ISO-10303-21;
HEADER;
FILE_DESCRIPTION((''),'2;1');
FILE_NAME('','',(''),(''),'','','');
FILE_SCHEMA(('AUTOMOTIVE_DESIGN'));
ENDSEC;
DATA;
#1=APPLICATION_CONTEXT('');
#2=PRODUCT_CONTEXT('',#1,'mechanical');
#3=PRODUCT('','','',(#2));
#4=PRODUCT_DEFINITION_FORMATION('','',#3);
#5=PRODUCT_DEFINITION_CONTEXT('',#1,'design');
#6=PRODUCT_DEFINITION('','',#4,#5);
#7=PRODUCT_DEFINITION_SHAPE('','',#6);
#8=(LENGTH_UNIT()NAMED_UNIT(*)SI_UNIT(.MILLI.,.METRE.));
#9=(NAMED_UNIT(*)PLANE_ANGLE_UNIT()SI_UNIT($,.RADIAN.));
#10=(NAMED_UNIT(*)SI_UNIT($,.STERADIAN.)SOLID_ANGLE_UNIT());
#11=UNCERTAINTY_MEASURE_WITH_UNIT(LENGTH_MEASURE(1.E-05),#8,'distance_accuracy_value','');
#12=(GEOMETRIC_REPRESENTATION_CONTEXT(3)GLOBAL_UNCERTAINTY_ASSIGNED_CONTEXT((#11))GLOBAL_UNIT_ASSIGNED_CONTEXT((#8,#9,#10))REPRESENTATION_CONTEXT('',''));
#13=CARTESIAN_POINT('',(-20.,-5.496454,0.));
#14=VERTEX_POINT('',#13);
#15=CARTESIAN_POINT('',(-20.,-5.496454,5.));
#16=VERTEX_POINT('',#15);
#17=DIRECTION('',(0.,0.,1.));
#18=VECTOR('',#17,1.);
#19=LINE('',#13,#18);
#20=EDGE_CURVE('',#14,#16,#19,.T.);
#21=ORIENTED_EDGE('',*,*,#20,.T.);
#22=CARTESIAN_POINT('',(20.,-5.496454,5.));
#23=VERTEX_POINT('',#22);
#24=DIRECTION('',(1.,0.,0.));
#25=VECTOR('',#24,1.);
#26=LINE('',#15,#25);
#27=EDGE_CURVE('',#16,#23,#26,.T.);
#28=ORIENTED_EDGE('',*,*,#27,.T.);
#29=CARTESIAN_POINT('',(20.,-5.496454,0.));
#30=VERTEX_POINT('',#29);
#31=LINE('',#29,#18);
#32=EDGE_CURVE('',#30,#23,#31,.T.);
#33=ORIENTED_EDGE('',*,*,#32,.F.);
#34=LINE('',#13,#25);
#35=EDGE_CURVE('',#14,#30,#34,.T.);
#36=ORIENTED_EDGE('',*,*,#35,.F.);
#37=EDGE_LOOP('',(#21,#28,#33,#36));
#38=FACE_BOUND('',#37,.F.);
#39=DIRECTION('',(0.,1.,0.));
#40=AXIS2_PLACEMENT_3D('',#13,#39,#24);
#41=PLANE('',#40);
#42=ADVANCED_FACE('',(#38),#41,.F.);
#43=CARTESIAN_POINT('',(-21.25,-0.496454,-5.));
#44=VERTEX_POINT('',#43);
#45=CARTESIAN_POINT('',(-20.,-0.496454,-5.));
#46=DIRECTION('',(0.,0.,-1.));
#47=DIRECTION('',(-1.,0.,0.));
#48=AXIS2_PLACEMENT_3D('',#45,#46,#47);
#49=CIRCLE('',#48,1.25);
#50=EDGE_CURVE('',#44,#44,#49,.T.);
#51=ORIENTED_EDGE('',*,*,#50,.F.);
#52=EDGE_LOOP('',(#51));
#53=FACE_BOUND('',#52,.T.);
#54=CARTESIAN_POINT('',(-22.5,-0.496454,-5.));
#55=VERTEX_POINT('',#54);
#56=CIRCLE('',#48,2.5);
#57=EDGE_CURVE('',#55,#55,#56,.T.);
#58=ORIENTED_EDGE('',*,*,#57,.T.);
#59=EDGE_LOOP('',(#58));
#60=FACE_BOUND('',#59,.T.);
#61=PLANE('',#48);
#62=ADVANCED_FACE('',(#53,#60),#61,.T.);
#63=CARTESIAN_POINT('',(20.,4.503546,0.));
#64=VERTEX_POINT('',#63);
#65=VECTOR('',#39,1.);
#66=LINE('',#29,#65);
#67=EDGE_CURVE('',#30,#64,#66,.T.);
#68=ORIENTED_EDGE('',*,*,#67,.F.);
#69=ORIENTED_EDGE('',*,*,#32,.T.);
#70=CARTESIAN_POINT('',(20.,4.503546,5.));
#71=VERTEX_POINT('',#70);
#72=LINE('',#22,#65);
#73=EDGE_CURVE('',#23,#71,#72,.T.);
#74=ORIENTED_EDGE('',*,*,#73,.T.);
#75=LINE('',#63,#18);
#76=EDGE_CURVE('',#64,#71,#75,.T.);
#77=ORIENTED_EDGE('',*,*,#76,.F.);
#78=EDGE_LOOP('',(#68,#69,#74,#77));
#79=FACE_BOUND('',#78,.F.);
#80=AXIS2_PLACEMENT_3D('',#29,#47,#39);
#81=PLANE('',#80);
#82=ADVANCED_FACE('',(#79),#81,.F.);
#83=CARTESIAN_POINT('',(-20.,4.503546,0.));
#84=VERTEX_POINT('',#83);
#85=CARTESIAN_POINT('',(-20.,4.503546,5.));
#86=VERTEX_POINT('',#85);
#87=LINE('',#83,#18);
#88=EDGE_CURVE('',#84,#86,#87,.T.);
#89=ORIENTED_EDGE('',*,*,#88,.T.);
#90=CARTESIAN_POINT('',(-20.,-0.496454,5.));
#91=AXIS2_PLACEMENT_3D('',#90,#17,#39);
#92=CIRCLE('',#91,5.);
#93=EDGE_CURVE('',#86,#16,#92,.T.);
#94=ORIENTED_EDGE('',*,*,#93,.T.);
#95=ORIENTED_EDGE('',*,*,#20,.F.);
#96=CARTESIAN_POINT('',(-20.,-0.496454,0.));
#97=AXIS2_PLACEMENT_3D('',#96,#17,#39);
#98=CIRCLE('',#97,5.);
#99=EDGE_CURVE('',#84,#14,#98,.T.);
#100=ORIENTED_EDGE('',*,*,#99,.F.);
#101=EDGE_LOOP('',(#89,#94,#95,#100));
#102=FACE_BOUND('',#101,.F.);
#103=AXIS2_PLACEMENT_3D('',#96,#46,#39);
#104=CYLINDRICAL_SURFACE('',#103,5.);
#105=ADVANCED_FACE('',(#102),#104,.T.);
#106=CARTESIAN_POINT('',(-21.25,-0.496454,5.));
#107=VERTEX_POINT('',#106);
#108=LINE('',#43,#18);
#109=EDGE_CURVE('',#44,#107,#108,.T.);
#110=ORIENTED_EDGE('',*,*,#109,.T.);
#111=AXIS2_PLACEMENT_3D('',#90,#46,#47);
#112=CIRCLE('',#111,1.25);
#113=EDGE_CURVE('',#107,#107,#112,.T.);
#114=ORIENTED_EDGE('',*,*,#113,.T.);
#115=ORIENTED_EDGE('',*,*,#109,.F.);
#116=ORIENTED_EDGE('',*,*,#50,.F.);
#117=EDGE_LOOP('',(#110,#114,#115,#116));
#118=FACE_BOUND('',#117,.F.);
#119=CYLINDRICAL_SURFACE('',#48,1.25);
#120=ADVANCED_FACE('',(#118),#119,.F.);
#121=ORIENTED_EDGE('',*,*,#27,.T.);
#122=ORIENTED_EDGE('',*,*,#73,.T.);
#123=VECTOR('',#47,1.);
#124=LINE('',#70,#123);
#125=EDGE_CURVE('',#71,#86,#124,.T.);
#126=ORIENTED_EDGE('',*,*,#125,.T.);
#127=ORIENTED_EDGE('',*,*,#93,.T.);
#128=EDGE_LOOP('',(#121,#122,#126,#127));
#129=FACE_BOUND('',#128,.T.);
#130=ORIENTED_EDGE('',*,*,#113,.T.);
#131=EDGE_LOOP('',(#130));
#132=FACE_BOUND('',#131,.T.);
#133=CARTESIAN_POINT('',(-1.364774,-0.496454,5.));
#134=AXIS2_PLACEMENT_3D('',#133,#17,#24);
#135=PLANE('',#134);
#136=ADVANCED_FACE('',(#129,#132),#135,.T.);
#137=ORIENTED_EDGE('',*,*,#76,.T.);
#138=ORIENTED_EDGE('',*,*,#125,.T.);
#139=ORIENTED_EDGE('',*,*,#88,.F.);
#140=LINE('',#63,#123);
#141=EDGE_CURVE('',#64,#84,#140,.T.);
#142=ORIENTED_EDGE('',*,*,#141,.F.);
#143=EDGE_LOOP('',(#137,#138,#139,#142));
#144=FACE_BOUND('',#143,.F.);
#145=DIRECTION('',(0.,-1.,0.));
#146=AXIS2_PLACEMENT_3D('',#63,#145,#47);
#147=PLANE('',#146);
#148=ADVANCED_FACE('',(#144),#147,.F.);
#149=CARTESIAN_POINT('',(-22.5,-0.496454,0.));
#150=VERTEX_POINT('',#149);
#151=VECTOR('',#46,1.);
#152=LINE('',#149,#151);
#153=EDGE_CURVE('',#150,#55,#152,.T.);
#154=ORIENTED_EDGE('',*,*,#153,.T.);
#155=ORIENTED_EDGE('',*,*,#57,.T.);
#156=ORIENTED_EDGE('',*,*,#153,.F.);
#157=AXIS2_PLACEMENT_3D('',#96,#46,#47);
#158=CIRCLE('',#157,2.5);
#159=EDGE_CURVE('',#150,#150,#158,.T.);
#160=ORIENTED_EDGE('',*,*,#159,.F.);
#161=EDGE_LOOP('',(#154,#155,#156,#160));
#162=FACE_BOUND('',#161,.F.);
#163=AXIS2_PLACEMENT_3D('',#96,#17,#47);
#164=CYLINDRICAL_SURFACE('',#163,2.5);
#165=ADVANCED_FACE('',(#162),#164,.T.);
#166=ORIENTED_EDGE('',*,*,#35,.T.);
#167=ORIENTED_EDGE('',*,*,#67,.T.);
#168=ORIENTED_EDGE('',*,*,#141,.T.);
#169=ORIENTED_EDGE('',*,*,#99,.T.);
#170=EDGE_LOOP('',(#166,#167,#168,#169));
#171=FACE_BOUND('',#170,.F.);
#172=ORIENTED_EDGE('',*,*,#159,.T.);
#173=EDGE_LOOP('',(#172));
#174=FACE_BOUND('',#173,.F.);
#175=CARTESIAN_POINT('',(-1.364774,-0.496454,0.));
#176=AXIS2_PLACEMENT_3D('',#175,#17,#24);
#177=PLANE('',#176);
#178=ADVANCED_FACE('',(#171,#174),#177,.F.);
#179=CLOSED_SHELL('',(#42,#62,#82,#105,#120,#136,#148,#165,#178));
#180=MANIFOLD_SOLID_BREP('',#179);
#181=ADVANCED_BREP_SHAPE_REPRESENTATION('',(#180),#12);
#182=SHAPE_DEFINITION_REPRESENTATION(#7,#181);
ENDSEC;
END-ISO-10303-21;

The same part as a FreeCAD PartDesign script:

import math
import FreeCAD as App
import Part
import Sketcher

V = App.Vector

doc = App.newDocument("Part")
body = doc.addObject("PartDesign::Body", "Body")

# Sketch on XY plane
sketch1 = doc.addObject("Sketcher::SketchObject", "Sketch")
body.addObject(sketch1)
sketch1.AttachmentSupport = (doc.XY_Plane, [""])
sketch1.MapMode = "FlatFace"
sketch1.addGeometry([
    Part.LineSegment(V(20, 5, 0), V(-20, 5, 0)),
    Part.ArcOfCircle(Part.Circle(V(-20, 0, 0), V(0, 0, 1), 5), math.radians(90), math.radians(270)),
    Part.LineSegment(V(-20, -5, 0), V(20, -5, 0)),
    Part.LineSegment(V(20, -5, 0), V(20, 5, 0)),
], False)
sketch1.addConstraint([
    Sketcher.Constraint("Tangent", 0, 2, 1, 1),
    Sketcher.Constraint("Tangent", 1, 2, 2, 1),
    Sketcher.Constraint("Coincident", 2, 2, 3, 1),
    Sketcher.Constraint("Coincident", 3, 2, 0, 1),
    Sketcher.Constraint("Horizontal", 0),
    Sketcher.Constraint("Horizontal", 2),
    Sketcher.Constraint("Vertical", 3),
    Sketcher.Constraint("Radius", 1, 5.0),
    Sketcher.Constraint("DistanceX", 0, 2, 0, 1, 40.0),
    Sketcher.Constraint("DistanceX", 1, 3, -1, 1, 20.0),
    Sketcher.Constraint("DistanceY", 1, 3, -1, 1, 0.496454),
])
pad1 = doc.addObject("PartDesign::Pad", "Pad")
body.addObject(pad1)
pad1.Profile = sketch1
pad1.Length = 5

# Sketch on XY plane
sketch2 = doc.addObject("Sketcher::SketchObject", "Sketch001")
body.addObject(sketch2)
sketch2.AttachmentSupport = (doc.XY_Plane, [""])
sketch2.MapMode = "FlatFace"
sketch2.addGeometry(Part.Circle(V(-20, -0.5, 0), V(0, 0, 1), 2.5), False)
sketch2.addConstraint([
    Sketcher.Constraint("Diameter", 0, 5.0),
    Sketcher.Constraint("DistanceX", 0, 3, -1, 1, 20.0),
    Sketcher.Constraint("DistanceY", 0, 3, -1, 1, 0.496454),
])
pad2 = doc.addObject("PartDesign::Pad", "Pad001")
body.addObject(pad2)
pad2.Profile = sketch2
pad2.Length = 5
pad2.Reversed = True

# Sketch on XY plane
sketch3 = doc.addObject("Sketcher::SketchObject", "Sketch002")
body.addObject(sketch3)
sketch3.AttachmentSupport = (doc.XY_Plane, [""])
sketch3.MapMode = "FlatFace"
sketch3.AttachmentOffset = App.Placement(V(0, 0, -5), App.Rotation())
sketch3.addGeometry(Part.Circle(V(-20, -0.5, 0), V(0, 0, 1), 1.2), False)
sketch3.addConstraint([
    Sketcher.Constraint("Diameter", 0, 2.5),
    Sketcher.Constraint("DistanceX", 0, 3, -1, 1, 20.0),
    Sketcher.Constraint("DistanceY", 0, 3, -1, 1, 0.496454),
])
pocket1 = doc.addObject("PartDesign::Pocket", "Pocket")
body.addObject(pocket1)
pocket1.Profile = sketch3
pocket1.Type = "ThroughAll"
pocket1.Reversed = True

doc.recompute()
